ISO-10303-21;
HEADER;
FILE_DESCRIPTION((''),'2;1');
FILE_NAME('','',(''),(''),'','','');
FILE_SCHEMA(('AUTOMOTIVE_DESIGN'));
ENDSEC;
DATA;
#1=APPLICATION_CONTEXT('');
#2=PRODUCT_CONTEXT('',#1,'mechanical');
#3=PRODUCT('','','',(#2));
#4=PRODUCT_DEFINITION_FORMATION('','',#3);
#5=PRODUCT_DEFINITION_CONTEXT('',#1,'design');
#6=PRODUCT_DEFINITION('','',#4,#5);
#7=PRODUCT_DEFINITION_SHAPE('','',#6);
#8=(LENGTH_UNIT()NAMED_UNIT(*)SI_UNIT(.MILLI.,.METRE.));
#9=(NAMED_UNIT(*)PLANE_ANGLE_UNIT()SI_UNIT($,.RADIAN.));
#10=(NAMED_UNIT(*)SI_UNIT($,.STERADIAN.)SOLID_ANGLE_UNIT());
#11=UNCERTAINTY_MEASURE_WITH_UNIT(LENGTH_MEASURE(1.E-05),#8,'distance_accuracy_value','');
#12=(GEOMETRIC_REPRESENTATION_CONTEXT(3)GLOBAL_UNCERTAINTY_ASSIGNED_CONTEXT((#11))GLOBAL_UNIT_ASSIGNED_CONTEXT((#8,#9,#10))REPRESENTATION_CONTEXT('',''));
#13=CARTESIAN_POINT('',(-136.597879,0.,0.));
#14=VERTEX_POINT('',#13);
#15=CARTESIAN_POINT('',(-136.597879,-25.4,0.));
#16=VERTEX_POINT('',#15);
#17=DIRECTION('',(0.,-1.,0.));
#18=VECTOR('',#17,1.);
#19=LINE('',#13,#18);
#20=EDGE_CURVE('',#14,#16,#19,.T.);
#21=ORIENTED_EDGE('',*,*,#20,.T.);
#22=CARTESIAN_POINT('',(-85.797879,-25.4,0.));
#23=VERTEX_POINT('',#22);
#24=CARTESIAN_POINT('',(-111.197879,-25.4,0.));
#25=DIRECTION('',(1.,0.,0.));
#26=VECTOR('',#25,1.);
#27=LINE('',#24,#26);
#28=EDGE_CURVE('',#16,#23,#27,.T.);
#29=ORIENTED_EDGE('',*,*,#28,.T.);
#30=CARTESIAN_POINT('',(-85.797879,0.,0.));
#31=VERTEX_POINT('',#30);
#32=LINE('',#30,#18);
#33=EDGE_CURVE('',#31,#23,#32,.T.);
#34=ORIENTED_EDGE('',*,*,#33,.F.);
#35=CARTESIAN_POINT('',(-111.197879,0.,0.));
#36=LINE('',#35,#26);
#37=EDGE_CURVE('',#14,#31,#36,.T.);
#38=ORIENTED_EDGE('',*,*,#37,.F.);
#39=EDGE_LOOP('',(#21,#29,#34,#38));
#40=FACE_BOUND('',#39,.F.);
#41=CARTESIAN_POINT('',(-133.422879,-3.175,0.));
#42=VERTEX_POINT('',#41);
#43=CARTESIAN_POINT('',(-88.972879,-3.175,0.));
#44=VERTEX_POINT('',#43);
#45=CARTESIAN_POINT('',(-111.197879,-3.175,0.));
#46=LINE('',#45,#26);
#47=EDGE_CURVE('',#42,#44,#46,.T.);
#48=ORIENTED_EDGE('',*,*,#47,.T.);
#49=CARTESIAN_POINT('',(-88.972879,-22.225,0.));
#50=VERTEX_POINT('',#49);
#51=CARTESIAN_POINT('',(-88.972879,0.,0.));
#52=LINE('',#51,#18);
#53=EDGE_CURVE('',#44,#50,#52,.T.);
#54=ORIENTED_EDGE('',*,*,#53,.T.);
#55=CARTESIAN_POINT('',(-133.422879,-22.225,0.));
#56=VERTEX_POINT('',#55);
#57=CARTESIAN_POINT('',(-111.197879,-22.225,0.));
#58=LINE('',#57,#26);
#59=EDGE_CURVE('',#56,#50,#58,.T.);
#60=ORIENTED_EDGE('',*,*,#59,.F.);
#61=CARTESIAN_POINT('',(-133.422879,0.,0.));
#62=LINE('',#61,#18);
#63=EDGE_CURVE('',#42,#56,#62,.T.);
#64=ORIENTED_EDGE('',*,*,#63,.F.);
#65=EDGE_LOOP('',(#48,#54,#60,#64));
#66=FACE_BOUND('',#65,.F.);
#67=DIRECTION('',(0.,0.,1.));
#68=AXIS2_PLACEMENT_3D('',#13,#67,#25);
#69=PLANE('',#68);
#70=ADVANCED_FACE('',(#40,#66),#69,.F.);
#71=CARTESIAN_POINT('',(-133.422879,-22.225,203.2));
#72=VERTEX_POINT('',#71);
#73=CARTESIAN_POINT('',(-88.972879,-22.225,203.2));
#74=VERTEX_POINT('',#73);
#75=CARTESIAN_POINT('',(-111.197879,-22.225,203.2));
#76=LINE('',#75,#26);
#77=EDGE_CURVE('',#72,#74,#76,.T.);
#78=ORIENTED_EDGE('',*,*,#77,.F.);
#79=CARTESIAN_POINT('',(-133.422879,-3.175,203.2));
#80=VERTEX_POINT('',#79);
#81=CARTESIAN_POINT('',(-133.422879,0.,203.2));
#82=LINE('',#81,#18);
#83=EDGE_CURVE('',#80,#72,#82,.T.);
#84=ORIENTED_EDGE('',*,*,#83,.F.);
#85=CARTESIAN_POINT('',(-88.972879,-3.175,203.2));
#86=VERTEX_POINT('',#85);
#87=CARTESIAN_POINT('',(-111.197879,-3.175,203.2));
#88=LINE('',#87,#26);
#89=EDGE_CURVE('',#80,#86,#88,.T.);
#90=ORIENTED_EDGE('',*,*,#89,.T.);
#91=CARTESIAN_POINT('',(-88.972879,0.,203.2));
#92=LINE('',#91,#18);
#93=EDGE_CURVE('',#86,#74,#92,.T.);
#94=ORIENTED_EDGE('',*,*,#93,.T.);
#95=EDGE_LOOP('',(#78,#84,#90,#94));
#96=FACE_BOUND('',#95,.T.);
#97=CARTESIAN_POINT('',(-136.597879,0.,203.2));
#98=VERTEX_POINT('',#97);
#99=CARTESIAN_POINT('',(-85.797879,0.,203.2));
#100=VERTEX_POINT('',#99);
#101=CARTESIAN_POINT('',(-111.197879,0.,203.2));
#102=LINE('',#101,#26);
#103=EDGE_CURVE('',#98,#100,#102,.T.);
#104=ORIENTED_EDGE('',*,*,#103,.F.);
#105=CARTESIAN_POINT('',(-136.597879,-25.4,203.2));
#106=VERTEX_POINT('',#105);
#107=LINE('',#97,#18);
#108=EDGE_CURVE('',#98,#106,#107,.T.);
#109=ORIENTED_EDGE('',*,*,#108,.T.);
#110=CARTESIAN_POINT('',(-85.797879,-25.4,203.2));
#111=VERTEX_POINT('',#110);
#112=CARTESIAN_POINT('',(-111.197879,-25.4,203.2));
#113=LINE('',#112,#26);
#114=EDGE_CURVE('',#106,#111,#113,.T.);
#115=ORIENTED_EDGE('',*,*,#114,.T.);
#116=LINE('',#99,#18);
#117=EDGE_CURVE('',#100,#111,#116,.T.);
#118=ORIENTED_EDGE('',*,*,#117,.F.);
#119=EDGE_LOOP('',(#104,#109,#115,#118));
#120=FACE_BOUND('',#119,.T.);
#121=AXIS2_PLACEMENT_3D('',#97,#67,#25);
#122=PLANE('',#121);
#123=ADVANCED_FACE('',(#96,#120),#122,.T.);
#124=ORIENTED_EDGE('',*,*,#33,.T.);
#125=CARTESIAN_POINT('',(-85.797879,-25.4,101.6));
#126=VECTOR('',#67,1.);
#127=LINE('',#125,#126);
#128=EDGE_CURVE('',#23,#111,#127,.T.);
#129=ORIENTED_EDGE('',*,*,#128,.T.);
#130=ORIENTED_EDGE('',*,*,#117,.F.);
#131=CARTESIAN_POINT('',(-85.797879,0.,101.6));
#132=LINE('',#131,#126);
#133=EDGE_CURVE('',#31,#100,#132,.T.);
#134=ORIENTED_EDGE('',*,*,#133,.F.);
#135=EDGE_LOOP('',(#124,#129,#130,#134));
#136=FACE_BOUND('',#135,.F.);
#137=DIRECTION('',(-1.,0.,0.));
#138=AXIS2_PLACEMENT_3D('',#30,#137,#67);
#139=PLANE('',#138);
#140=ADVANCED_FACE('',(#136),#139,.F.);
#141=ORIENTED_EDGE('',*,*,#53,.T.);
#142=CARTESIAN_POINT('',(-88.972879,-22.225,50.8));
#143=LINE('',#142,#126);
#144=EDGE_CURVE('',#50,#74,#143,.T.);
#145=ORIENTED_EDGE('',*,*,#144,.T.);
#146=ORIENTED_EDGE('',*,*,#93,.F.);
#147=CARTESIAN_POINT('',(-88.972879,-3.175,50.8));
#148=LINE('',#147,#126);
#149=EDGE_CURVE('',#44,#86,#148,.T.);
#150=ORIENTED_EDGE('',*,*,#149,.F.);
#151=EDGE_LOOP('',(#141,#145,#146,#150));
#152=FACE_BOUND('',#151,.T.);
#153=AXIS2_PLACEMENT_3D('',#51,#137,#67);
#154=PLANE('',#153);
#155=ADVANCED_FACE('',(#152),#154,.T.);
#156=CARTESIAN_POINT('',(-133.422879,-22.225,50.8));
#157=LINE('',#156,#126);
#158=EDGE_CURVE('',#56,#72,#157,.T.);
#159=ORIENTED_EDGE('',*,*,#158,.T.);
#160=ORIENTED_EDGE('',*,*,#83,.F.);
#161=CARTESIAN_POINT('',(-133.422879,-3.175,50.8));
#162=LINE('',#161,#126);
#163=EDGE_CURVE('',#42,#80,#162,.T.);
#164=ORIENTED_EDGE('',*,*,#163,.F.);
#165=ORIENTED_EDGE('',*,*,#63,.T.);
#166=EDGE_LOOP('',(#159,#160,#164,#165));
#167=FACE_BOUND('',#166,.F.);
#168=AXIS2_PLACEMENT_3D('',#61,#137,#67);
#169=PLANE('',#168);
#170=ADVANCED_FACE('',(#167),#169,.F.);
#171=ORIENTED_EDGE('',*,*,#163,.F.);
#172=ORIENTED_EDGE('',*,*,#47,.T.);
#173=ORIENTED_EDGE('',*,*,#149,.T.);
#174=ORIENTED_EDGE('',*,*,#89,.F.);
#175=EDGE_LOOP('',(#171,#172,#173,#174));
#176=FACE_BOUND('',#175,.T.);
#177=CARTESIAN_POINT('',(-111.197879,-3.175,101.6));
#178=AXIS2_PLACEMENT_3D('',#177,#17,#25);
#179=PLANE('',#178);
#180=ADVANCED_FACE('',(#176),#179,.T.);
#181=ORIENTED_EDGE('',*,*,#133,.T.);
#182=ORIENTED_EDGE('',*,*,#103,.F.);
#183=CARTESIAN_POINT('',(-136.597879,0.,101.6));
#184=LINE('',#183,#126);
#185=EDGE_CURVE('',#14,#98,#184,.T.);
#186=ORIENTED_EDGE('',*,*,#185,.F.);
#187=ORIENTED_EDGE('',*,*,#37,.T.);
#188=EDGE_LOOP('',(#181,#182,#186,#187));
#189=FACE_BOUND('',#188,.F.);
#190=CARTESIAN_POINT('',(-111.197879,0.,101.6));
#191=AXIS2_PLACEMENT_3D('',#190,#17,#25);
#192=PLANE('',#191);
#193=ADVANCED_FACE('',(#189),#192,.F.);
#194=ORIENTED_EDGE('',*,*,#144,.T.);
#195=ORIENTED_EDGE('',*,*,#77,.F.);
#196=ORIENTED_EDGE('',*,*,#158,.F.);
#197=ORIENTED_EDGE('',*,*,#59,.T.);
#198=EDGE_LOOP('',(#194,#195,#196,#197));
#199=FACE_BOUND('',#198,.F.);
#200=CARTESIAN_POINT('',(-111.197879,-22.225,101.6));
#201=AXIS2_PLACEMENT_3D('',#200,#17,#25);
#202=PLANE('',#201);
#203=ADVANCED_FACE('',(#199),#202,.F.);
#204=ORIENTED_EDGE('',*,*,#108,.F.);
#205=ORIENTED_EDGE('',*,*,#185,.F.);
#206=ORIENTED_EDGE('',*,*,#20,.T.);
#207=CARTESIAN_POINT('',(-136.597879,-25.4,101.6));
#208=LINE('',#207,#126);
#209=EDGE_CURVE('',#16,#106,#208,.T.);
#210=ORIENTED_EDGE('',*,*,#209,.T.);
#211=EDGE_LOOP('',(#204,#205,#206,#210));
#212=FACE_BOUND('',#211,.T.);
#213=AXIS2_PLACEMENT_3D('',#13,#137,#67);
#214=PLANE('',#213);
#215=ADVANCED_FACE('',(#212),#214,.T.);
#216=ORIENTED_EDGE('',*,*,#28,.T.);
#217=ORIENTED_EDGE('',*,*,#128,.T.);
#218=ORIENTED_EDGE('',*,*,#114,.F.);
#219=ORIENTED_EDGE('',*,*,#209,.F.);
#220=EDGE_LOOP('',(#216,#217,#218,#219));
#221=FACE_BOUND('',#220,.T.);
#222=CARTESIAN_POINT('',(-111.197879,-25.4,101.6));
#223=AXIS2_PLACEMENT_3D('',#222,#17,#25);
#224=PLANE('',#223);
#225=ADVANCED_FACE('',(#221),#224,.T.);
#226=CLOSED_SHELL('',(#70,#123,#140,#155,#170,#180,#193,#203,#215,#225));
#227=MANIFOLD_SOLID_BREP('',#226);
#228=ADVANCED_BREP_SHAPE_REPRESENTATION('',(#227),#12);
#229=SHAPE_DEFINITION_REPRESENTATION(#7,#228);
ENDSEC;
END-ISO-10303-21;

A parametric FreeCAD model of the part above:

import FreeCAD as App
import Part
import Sketcher
Q = App.Units.Quantity


def faces_at(feature, points):
    """Names of the faces that lie closest to the given points."""
    faces = feature.Shape.Faces
    near = lambda p: min(range(len(faces)), key=lambda i: faces[i].distToShape(Part.Vertex(*p))[0])
    return sorted({f"Face{near(p) + 1}" for p in points})


def add_polygon(sketch, points):
    """Adds a closed chain of lines whose ends are joined by coincident constraints."""
    first, n = sketch.GeometryCount, len(points)
    for a, b in zip(points, points[1:] + points[:1]):
        sketch.addGeometry(Part.LineSegment(App.Vector(*a, 0), App.Vector(*b, 0)), False)
    for i in range(n):
        sketch.addConstraint(Sketcher.Constraint("Coincident", first + i, 2, first + (i + 1) % n, 1))

doc = App.newDocument("Part")
body = doc.addObject("PartDesign::Body", "Body")

sketch1 = doc.addObject("Sketcher::SketchObject", "Sketch")
body.addObject(sketch1)
sketch1.AttachmentSupport = (doc.XZ_Plane, [""])
sketch1.MapMode = "FlatFace"
add_polygon(sketch1, [(-137, 203), (-137, 0), (-86, 0), (-86, 203)])
sketch1.addConstraint(Sketcher.Constraint("Vertical", 0))
sketch1.addConstraint(Sketcher.Constraint("Horizontal", 1))
sketch1.addConstraint(Sketcher.Constraint("Vertical", 2))
sketch1.addConstraint(Sketcher.Constraint("Horizontal", 3))
sketch1.addConstraint(Sketcher.Constraint("PointOnObject", 0, 2, -1))
sketch1.addConstraint(Sketcher.Constraint("DistanceX", 1, 1, 1, 2, Q("2 in")))
sketch1.addConstraint(Sketcher.Constraint("DistanceY", 0, 2, 0, 1, Q("8 in")))
sketch1.addConstraint(Sketcher.Constraint("DistanceX", 0, 2, -1, 1, 136.597879))
pad1 = doc.addObject("PartDesign::Pad", "Pad")
body.addObject(pad1)
pad1.Profile = sketch1
pad1.Length = Q("1 in")
doc.recompute()

thickness = doc.addObject("PartDesign::Thickness", "Thickness")
body.addObject(thickness)
thickness.Base = (pad1, faces_at(pad1, [(-111.198, -12.7, 203.2), (-111.198, -12.7, 0)]))
thickness.Value = Q("0.125 in")
thickness.Reversed = True
thickness.Join = "Arc"

doc.recompute()
